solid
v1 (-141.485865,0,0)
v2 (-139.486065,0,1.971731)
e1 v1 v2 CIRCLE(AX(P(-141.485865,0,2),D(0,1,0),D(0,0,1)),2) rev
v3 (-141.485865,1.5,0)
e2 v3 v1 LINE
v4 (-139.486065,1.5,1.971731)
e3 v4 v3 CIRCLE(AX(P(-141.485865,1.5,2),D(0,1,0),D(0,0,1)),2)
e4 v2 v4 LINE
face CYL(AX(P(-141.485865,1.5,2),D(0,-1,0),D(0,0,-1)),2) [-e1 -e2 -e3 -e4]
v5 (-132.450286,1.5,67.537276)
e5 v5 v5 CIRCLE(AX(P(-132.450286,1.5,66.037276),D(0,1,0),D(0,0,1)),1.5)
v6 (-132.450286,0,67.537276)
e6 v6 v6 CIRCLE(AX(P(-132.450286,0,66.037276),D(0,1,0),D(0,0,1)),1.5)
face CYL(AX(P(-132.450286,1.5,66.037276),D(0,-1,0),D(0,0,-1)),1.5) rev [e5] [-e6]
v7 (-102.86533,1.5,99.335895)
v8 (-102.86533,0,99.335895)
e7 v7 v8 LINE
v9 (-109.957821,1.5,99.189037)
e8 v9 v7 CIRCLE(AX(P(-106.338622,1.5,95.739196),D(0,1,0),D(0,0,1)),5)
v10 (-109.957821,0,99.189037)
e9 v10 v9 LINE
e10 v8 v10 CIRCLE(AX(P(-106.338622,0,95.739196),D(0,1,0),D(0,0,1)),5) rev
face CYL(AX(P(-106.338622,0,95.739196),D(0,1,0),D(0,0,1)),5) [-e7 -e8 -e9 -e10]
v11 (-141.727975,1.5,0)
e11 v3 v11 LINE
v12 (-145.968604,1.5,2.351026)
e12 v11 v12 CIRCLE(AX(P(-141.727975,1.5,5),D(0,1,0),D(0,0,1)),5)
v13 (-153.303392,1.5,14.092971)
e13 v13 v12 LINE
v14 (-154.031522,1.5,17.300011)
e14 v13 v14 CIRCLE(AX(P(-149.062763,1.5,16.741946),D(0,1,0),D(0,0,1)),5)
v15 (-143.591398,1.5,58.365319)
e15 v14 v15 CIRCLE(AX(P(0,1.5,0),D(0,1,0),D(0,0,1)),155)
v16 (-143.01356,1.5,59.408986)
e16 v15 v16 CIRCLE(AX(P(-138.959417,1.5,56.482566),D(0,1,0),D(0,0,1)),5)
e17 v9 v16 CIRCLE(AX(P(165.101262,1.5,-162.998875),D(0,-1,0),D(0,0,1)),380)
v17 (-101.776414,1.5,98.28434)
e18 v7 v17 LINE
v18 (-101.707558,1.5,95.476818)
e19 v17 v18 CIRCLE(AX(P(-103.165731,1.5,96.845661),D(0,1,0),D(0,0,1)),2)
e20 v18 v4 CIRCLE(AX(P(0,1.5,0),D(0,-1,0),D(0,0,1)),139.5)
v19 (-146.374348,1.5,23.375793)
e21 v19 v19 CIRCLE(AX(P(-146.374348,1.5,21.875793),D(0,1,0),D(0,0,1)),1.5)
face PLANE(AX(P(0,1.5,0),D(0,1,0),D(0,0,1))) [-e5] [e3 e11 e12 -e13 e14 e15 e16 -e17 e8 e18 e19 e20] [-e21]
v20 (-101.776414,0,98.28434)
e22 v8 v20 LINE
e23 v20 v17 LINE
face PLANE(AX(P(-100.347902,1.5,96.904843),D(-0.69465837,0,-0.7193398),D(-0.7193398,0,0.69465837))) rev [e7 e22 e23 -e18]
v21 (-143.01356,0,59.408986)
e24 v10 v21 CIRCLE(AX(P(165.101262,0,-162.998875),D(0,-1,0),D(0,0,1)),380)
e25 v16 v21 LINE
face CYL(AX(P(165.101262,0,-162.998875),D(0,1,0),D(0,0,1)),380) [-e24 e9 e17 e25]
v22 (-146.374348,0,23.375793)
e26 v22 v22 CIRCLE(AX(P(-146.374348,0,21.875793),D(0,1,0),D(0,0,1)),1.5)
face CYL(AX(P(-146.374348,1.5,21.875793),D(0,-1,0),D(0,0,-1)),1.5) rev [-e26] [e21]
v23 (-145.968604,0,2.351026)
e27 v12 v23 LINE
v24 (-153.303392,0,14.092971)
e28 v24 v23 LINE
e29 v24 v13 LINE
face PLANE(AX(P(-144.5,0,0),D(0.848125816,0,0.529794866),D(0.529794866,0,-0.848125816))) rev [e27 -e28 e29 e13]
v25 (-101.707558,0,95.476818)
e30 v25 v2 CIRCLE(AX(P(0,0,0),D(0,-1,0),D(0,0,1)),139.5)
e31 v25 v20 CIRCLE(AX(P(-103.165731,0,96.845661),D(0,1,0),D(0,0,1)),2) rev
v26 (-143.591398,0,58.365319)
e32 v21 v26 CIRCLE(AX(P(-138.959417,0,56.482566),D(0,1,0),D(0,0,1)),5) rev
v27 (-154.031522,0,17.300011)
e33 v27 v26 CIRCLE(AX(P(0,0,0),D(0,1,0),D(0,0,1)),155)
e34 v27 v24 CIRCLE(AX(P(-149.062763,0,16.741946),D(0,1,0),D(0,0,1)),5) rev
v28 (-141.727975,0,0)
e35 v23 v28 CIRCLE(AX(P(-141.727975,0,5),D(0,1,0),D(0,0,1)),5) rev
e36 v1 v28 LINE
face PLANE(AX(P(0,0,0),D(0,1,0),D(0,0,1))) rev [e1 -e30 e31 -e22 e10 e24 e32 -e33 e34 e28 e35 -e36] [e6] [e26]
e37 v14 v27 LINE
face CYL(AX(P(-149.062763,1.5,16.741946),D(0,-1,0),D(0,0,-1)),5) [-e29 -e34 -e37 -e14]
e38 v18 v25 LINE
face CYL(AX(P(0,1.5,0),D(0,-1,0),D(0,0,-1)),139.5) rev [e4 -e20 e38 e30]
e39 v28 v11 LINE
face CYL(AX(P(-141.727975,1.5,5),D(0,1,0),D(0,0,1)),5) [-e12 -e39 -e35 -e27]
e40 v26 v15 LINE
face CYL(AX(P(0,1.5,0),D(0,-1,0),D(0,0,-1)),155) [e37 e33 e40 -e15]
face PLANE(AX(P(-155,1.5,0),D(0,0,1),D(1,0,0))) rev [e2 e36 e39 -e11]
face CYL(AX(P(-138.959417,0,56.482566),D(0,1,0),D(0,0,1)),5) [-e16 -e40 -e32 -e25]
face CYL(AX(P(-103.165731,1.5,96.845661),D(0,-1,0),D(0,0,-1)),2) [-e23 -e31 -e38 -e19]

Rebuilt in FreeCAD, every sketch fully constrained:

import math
import FreeCAD as App
import Part
import Sketcher
Q = App.Units.Quantity


def edges_at(feature, points):
    """Names of the edges that pass closest to the given points."""
    edges = feature.Shape.Edges
    near = lambda p: min(range(len(edges)), key=lambda i: edges[i].distToShape(Part.Vertex(*p))[0])
    return sorted({f"Edge{near(p) + 1}" for p in points})

doc = App.newDocument("Part")
body = doc.addObject("PartDesign::Body", "Body")

sketch1 = body.newObject("Sketcher::SketchObject", "Sketch")
sketch1.AttachmentSupport = (doc.getObject("XZ_Plane"), [""])
sketch1.MapMode = "FlatFace"
sketch1.addGeometry([
    Part.LineSegment(App.Vector(-139.5, 0, 0), App.Vector(-155, 0, 0)),
    Part.ArcOfCircle(Part.Circle(App.Vector(0, 0, 0), App.Vector(0, 0, 1), 155), math.radians(136), math.radians(180)),
    Part.LineSegment(App.Vector(-111.5, 107.7, 0), App.Vector(-100.3, 96.9, 0)),
    Part.ArcOfCircle(Part.Circle(App.Vector(0, 0, 0), App.Vector(0, 0, 1), 139.5), math.radians(136), math.radians(180)),
    Part.Circle(App.Vector(-132.5, 66, 0), App.Vector(0, 0, 1), 1.5),
    Part.Circle(App.Vector(-146.4, 21.9, 0), App.Vector(0, 0, 1), 1.5),
], False)
sketch1.addConstraint([
    Sketcher.Constraint("Coincident", 0, 2, 1, 2),
    Sketcher.Constraint("Coincident", 1, 1, 2, 1),
    Sketcher.Constraint("Coincident", 2, 2, 3, 1),
    Sketcher.Constraint("Coincident", 3, 2, 0, 1),
    Sketcher.Constraint("Horizontal", 0),
    Sketcher.Constraint("Coincident", 1, 3, -1, 1),
    Sketcher.Constraint("Coincident", 3, 3, -1, 1),
    Sketcher.Constraint("Equal", 4, 5),
    Sketcher.Constraint("PointOnObject", 0, 2, -1),
    Sketcher.Constraint("Diameter", 4, 3.0),
    Sketcher.Constraint("Radius", 1, 155.0),
    Sketcher.Constraint("Radius", 3, 139.5),
    Sketcher.Constraint("Angle", 2, Q("-44 deg")),
    Sketcher.Constraint("DistanceX", 1, 1, -1, 1, 111.497669),
    Sketcher.Constraint("DistanceY", 4, 3, 1, 1, 41.634771),
    Sketcher.Constraint("DistanceX", 5, 3, 1, 1, 34.876679),
    Sketcher.Constraint("DistanceY", 5, 3, 2, 2, 75.02905),
    Sketcher.Constraint("DistanceX", 4, 3, -1, 1, 132.450286),
])
pad1 = body.newObject("PartDesign::Pad", "Pad")
pad1.Profile = sketch1
pad1.Length = 1.5
pad1.Reversed = True

sketch2 = body.newObject("Sketcher::SketchObject", "Sketch001")
sketch2.AttachmentSupport = (doc.getObject("XZ_Plane"), [""])
sketch2.MapMode = "FlatFace"
sketch2.AttachmentOffset = App.Placement(App.Vector(0, 0, -1.5), App.Rotation())
sketch2.addGeometry([
    Part.LineSegment(App.Vector(-144, 0, 0), App.Vector(-155, 0, 0)),
    Part.ArcOfCircle(Part.Circle(App.Vector(0, 0, 0), App.Vector(0, 0, 1), 155), math.radians(174.24), math.radians(180)),
    Part.LineSegment(App.Vector(-154, 16, 0), App.Vector(-144, 0, 0)),
    Part.LineSegment(App.Vector(-111, 108, 0), App.Vector(-106, 103, 0)),
    Part.ArcOfCircle(Part.Circle(App.Vector(165, -163, 0), App.Vector(0, 0, 1), 380), math.radians(135.61), math.radians(144.27)),
    Part.ArcOfCircle(Part.Circle(App.Vector(0, 0, 0), App.Vector(0, 0, 1), 155), math.radians(136), math.radians(158)),
], False)
sketch2.addConstraint([
    Sketcher.Constraint("Coincident", 0, 2, 1, 2),
    Sketcher.Constraint("Coincident", 1, 1, 2, 1),
    Sketcher.Constraint("Coincident", 2, 2, 0, 1),
    Sketcher.Constraint("Coincident", 3, 2, 4, 1),
    Sketcher.Constraint("Coincident", 4, 2, 5, 2),
    Sketcher.Constraint("Coincident", 5, 1, 3, 1),
    Sketcher.Constraint("Horizontal", 0),
    Sketcher.Constraint("Coincident", 1, 3, -1, 1),
    Sketcher.Constraint("Coincident", 5, 3, -1, 1),
    Sketcher.Constraint("Equal", 1, 5),
    Sketcher.Constraint("PointOnObject", 0, 2, -1),
    Sketcher.Constraint("Radius", 1, 155.0),
    Sketcher.Constraint("Radius", 4, 380.0),
    Sketcher.Constraint("Angle", 3, Q("-44 deg")),
    Sketcher.Constraint("DistanceX", 0, 2, 0, 1, 10.5),
    Sketcher.Constraint("Distance", 2, 18.341812),
    Sketcher.Constraint("DistanceX", 3, 2, -1, 1, 106.461512),
    Sketcher.Constraint("DistanceY", -1, 1, 4, 2, 58.924051),
    Sketcher.Constraint("DistanceX", 1, 1, 4, 3, 319.31866),
])
pocket1 = body.newObject("PartDesign::Pocket", "Pocket")
pocket1.Profile = sketch2
pocket1.Type = "ThroughAll"
pocket1.Reversed = True
doc.recompute()

fillet = body.newObject("PartDesign::Fillet", "Fillet")
fillet.Base = (pocket1, edges_at(pocket1, [
    (-154.217, 0.75, 15.556),
    (-144.5, 0.75, 0),
    (-143.363, 0.75, 58.924),
    (-106.462, 0.75, 102.809),
]))
fillet.Radius = 5
doc.recompute()

fillet2 = body.newObject("PartDesign::Fillet", "Fillet001")
fillet2.Base = (fillet, edges_at(fillet, [(-100.348, 0.75, 96.905), (-139.5, 0.75, 0)]))
fillet2.Radius = 2

doc.recompute()
